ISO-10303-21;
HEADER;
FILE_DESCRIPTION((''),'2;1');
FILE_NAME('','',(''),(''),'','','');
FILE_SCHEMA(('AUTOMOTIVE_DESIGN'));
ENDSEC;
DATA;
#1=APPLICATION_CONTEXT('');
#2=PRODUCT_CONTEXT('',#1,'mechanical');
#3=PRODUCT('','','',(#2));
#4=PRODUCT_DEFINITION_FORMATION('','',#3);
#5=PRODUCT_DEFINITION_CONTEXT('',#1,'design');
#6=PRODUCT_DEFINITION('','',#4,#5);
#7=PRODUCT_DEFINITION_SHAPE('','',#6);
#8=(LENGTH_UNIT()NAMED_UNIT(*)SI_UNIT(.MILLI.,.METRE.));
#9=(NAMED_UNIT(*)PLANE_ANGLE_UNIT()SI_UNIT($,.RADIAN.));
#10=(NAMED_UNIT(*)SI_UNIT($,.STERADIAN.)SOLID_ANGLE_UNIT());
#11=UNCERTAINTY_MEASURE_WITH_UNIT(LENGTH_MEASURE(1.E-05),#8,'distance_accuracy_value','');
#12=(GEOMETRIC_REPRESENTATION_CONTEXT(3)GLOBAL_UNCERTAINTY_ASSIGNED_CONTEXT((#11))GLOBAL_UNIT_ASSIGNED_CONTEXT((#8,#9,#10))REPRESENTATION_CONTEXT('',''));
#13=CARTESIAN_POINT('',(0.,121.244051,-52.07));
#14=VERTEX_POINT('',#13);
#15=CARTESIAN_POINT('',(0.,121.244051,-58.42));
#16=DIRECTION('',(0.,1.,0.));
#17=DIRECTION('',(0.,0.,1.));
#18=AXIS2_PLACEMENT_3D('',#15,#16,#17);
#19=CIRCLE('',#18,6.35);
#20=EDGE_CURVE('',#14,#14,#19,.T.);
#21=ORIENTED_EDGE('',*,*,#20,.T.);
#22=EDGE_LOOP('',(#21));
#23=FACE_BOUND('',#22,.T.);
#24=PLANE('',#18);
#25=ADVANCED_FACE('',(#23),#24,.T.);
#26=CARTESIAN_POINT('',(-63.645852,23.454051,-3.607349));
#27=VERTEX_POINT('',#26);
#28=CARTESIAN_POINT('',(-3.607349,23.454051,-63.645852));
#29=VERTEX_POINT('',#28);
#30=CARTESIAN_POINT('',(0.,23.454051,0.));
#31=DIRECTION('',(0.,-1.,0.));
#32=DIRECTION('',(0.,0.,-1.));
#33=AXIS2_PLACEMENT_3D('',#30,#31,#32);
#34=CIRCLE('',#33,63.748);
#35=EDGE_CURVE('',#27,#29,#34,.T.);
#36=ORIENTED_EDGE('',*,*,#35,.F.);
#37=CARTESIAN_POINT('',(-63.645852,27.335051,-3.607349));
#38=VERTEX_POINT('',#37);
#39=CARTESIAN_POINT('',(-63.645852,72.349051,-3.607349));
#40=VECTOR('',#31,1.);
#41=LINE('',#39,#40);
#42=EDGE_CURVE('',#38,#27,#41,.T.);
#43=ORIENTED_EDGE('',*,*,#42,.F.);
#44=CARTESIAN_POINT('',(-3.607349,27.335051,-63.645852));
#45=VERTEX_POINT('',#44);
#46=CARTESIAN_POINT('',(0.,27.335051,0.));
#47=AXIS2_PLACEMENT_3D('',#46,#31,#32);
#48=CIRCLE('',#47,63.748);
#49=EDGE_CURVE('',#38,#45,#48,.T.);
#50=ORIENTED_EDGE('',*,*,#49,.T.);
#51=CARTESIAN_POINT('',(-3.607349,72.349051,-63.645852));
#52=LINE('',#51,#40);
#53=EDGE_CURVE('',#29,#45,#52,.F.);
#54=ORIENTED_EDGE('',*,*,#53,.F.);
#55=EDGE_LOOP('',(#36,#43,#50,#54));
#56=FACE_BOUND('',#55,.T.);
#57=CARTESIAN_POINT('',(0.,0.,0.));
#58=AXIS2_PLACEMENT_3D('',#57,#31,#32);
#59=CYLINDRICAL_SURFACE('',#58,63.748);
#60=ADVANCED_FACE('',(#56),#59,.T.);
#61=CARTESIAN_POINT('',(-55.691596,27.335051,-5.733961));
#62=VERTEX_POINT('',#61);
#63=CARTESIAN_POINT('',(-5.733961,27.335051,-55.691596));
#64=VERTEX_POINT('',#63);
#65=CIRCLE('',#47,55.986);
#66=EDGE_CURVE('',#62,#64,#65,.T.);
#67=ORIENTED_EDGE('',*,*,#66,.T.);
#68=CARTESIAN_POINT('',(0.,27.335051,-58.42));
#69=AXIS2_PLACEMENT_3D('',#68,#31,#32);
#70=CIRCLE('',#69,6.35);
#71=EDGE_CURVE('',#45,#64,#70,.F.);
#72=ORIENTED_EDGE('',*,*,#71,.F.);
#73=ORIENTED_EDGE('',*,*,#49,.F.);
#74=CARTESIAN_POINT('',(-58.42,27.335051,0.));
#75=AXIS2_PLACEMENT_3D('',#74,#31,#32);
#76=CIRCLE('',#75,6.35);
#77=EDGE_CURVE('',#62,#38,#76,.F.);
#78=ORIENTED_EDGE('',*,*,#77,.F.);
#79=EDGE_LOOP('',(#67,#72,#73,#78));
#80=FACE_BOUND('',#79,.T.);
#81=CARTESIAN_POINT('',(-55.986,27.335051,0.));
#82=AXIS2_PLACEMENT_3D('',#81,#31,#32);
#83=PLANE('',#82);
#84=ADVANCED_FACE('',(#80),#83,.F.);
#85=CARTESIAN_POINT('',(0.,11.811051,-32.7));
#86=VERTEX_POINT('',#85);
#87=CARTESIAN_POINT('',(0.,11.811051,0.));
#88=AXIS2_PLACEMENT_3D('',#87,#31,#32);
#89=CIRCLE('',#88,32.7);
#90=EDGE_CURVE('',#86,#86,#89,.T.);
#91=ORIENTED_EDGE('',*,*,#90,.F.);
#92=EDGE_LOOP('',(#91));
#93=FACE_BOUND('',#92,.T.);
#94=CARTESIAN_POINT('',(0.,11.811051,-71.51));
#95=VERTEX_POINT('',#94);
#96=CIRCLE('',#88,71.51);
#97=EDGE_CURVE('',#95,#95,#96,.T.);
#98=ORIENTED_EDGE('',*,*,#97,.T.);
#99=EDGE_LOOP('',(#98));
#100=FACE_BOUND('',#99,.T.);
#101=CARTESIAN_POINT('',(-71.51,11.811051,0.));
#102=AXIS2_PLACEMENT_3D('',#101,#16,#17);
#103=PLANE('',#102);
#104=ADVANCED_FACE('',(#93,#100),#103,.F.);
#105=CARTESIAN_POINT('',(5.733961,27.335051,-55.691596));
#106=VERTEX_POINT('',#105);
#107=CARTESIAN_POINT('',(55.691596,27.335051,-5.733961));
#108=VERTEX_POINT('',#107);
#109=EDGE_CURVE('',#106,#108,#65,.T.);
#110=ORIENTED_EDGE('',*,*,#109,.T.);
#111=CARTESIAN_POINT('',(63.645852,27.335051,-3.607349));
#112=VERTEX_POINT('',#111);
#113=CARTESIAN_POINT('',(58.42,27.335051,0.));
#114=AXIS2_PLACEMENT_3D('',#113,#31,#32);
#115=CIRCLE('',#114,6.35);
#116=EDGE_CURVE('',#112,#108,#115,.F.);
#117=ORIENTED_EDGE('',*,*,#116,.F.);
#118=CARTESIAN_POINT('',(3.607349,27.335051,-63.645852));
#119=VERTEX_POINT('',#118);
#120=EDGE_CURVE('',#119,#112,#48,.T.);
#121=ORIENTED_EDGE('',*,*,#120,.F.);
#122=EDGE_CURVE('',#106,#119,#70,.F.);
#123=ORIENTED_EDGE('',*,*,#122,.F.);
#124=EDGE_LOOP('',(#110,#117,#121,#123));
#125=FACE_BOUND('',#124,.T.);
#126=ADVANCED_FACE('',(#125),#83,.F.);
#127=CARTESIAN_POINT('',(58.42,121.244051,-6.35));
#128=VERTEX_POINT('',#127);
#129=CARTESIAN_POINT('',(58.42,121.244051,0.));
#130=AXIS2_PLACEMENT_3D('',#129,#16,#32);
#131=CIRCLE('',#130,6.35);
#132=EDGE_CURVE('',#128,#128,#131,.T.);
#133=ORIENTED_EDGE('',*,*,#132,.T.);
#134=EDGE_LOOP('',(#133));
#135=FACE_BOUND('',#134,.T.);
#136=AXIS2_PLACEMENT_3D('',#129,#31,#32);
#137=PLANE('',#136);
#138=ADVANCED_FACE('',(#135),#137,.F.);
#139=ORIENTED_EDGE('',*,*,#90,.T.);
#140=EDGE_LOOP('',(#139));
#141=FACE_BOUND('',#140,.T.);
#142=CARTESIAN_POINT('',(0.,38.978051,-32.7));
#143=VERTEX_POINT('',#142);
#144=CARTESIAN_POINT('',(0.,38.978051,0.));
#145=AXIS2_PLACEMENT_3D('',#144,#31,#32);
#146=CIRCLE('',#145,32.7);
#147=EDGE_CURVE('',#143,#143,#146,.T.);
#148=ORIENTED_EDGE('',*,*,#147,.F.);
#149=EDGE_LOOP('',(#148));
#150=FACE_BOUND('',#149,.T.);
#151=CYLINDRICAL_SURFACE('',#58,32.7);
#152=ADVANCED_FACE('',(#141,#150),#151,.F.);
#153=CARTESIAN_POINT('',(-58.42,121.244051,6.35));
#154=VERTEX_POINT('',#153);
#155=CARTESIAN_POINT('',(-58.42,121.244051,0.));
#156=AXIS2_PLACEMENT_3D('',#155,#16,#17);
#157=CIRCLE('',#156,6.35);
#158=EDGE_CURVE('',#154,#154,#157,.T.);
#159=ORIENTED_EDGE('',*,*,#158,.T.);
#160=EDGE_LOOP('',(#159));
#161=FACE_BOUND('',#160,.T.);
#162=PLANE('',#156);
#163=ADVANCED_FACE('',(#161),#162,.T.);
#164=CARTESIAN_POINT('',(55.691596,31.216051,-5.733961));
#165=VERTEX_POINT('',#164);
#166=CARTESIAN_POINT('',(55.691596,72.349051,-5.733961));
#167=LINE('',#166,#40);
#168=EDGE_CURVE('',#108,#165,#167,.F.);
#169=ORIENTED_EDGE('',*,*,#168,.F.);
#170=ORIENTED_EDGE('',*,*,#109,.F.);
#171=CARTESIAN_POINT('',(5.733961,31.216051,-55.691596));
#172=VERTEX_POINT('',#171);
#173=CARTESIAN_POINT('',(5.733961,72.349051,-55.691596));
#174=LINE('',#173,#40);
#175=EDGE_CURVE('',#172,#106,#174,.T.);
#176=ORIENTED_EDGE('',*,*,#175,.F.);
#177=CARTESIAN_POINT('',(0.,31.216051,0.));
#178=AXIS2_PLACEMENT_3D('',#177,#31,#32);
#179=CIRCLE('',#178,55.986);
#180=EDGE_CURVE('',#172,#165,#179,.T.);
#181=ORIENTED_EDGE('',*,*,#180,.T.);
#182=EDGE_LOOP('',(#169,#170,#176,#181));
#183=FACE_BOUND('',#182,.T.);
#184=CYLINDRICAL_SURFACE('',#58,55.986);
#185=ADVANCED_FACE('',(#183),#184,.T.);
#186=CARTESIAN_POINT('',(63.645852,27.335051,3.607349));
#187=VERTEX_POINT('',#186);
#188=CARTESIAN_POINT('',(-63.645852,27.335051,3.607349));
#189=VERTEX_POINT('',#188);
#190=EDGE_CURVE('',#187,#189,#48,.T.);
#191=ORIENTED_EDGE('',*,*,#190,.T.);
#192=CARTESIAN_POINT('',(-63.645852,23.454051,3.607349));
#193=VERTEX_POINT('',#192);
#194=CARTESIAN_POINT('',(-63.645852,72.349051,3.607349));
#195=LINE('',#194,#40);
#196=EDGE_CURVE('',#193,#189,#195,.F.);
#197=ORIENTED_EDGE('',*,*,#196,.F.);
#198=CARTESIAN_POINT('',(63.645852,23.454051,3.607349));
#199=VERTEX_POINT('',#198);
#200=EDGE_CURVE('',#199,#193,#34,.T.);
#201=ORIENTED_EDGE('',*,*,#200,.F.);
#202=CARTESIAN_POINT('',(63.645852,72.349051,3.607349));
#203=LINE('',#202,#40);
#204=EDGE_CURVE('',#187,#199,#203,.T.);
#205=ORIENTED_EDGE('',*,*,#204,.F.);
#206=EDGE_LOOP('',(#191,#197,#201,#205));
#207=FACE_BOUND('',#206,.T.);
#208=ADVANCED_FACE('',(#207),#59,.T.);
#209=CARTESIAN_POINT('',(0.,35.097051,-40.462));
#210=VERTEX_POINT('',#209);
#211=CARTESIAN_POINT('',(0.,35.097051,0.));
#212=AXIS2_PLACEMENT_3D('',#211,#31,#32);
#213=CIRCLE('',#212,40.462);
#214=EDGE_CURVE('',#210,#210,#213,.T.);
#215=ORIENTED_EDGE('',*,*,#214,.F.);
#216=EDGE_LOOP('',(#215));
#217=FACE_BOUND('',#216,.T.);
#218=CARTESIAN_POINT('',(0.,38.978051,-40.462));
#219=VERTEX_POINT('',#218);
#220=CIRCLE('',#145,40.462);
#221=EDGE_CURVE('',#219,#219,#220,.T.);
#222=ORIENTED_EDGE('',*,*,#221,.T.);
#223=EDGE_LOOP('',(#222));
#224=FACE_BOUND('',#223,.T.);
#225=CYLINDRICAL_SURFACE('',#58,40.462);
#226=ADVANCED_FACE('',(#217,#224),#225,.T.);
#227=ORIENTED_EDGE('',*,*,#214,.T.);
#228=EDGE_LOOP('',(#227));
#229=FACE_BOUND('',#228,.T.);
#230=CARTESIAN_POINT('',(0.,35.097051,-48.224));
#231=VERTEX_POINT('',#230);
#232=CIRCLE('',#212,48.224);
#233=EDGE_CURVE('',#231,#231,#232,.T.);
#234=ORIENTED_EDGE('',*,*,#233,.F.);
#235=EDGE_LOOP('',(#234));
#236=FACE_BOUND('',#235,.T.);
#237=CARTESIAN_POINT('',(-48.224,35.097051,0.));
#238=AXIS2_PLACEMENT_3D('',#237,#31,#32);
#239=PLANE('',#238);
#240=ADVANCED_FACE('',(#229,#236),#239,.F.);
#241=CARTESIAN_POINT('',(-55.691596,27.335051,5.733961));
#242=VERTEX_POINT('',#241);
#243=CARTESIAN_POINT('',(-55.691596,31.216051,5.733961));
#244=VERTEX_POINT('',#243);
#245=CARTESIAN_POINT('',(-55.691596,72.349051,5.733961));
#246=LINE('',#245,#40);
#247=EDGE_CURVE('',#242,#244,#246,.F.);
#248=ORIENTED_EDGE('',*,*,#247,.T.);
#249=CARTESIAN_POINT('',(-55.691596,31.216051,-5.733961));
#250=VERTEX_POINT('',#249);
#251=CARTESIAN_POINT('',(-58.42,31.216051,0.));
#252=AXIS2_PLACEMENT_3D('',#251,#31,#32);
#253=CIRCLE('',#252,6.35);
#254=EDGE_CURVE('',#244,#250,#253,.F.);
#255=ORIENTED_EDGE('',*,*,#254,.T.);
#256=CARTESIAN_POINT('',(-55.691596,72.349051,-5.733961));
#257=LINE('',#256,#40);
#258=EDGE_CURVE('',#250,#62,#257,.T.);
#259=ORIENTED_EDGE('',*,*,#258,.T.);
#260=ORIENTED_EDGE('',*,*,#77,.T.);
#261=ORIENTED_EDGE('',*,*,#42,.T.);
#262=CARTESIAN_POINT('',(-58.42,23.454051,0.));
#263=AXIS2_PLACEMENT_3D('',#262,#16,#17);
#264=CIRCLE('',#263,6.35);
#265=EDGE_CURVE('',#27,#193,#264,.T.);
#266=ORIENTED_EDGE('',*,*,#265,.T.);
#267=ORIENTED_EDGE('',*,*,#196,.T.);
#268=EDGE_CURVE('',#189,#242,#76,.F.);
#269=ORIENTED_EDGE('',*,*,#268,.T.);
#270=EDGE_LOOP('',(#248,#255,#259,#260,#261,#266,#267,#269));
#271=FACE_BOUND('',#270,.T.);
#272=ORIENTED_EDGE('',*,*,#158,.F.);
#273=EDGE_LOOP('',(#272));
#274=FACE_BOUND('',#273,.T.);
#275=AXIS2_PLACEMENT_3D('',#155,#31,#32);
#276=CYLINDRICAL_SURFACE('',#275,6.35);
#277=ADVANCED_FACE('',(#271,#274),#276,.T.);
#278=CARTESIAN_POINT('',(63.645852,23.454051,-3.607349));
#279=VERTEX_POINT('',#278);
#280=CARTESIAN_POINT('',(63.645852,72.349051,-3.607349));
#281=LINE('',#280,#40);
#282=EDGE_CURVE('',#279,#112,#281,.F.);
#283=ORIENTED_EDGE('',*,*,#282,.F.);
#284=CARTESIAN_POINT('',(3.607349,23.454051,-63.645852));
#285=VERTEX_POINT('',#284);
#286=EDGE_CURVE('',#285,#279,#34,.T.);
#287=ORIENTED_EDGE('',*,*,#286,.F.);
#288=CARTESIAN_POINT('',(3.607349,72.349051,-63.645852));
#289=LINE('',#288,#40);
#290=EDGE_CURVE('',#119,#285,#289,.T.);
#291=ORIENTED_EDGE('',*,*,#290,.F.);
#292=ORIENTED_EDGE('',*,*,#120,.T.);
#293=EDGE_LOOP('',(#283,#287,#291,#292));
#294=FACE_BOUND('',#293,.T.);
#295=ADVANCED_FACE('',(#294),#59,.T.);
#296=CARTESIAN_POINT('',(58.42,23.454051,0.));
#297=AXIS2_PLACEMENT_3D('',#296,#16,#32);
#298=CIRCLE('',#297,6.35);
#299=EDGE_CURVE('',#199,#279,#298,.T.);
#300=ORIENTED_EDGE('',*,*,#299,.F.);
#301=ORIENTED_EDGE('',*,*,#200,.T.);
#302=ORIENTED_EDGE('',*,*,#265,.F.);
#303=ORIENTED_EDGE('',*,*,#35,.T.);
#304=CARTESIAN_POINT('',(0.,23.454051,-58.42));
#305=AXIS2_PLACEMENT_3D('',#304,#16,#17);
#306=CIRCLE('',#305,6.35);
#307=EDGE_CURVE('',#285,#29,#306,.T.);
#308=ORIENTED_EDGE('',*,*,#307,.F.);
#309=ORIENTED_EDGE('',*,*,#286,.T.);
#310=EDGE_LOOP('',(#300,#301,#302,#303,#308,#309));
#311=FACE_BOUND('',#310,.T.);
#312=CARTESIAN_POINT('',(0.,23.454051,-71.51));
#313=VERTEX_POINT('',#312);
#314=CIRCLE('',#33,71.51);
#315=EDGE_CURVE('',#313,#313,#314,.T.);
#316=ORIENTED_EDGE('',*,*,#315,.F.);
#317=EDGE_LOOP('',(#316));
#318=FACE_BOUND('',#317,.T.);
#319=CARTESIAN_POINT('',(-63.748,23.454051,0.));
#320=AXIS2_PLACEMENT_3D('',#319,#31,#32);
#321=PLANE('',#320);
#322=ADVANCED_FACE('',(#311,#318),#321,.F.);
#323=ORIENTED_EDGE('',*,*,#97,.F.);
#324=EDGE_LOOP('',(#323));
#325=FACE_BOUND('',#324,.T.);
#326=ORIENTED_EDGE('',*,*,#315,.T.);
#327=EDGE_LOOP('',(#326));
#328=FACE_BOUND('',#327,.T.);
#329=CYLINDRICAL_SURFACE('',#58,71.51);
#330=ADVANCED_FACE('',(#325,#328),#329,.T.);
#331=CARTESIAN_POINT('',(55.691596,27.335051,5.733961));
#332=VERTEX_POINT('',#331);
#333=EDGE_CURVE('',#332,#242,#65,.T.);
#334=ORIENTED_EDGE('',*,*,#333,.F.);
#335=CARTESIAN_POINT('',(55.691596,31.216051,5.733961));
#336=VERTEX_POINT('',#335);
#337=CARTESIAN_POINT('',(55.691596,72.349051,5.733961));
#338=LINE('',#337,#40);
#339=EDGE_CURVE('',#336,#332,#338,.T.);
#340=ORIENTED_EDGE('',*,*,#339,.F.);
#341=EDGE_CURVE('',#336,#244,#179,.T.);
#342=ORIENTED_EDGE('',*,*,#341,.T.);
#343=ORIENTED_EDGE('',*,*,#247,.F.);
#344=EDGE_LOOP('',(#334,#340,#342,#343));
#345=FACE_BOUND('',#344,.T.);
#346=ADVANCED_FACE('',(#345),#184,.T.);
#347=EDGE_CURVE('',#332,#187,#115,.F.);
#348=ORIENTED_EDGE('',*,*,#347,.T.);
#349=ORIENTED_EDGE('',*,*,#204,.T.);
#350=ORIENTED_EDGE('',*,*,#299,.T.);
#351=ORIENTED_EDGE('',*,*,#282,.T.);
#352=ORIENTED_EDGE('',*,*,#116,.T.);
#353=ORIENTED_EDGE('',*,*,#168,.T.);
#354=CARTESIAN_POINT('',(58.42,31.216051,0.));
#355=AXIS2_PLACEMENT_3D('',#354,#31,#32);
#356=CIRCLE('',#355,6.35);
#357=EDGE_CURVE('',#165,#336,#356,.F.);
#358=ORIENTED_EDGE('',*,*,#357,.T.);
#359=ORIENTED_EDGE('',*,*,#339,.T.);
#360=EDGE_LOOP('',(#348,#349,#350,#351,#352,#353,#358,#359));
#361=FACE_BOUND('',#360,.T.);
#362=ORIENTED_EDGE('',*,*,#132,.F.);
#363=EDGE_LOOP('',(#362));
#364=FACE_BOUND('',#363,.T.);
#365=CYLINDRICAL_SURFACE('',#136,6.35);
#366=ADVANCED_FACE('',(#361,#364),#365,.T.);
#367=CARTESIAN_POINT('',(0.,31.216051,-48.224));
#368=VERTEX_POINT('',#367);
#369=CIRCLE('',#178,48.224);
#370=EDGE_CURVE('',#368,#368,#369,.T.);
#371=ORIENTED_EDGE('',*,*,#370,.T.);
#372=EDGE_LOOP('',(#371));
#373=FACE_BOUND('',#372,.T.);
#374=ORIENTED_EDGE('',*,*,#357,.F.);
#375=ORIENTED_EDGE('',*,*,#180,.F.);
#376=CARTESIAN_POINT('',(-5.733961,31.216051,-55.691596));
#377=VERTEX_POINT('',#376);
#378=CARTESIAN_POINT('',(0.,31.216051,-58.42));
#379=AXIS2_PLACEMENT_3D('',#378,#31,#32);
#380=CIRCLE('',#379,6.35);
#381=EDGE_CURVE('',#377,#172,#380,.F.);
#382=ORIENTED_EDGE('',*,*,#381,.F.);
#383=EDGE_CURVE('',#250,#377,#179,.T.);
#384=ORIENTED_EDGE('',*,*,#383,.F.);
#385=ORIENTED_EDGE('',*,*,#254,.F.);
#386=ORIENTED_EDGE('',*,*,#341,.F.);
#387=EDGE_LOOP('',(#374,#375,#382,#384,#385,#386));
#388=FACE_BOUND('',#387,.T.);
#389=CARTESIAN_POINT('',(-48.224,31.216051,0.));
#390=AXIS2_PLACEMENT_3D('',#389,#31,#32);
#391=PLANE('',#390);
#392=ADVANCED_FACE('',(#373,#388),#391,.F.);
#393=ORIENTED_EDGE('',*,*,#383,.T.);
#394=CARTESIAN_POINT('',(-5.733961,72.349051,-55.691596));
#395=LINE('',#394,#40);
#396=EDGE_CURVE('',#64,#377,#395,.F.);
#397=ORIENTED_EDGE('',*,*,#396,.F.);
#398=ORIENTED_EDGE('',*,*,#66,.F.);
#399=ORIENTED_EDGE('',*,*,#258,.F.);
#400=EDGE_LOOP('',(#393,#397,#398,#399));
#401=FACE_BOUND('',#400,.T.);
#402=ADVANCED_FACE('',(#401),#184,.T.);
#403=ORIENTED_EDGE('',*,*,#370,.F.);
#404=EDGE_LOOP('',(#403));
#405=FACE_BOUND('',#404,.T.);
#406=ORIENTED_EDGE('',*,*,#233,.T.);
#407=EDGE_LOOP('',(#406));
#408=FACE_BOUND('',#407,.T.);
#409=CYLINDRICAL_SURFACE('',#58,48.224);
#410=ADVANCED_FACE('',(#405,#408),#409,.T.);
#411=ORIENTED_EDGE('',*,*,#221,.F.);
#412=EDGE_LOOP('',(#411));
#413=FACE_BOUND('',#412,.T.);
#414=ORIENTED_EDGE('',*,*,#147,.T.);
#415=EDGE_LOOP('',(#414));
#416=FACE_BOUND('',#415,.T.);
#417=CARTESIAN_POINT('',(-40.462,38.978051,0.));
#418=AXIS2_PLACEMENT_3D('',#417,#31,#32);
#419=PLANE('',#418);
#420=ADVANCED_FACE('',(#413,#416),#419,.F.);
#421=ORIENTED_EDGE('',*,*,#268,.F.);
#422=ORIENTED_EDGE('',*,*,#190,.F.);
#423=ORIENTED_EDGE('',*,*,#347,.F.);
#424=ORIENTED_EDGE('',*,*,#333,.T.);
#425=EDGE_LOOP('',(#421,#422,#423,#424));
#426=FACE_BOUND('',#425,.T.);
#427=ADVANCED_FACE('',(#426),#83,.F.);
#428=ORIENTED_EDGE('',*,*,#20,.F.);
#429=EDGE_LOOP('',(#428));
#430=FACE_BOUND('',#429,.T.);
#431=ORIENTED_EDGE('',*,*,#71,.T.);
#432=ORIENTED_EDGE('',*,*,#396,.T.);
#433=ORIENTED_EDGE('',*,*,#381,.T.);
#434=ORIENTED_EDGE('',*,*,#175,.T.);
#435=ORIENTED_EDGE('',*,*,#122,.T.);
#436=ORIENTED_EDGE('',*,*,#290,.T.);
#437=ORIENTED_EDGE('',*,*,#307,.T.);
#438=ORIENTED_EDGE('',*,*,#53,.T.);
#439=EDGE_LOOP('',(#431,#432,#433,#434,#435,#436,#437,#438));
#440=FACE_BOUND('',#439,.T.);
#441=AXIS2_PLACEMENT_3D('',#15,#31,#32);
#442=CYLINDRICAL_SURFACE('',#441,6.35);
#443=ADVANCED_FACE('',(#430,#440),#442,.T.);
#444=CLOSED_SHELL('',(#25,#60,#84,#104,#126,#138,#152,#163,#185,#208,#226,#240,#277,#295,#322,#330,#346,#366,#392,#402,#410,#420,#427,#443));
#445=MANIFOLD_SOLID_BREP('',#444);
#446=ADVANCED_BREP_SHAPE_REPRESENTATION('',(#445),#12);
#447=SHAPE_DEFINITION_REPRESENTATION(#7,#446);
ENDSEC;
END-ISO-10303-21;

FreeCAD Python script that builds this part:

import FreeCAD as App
import Part
import Sketcher
Q = App.Units.Quantity

doc = App.newDocument("Part")
body = doc.addObject("PartDesign::Body", "Body")

sketch1 = doc.addObject("Sketcher::SketchObject", "Sketch")
body.addObject(sketch1)
sketch1.AttachmentSupport = (doc.XY_Plane, [""])
sketch1.MapMode = "FlatFace"
sketch1.addGeometry([
    Part.LineSegment(App.Vector(-40.462, 35.097051, 0), App.Vector(-48.224, 35.097051, 0)),
    Part.LineSegment(App.Vector(-48.224, 35.097051, 0), App.Vector(-48.224, 31.216051, 0)),
    Part.LineSegment(App.Vector(-48.224, 31.216051, 0), App.Vector(-55.986, 31.216051, 0)),
    Part.LineSegment(App.Vector(-55.986, 31.216051, 0), App.Vector(-55.986, 27.335051, 0)),
    Part.LineSegment(App.Vector(-55.986, 27.335051, 0), App.Vector(-63.748, 27.335051, 0)),
    Part.LineSegment(App.Vector(-63.748, 27.335051, 0), App.Vector(-63.748, 23.454051, 0)),
    Part.LineSegment(App.Vector(-63.748, 23.454051, 0), App.Vector(-71.51, 23.454051, 0)),
    Part.LineSegment(App.Vector(-71.51, 23.454051, 0), App.Vector(-71.51, 11.811051, 0)),
    Part.LineSegment(App.Vector(-71.51, 11.811051, 0), App.Vector(-32.7, 11.811051, 0)),
    Part.LineSegment(App.Vector(-32.7, 11.811051, 0), App.Vector(-32.7, 38.978051, 0)),
    Part.LineSegment(App.Vector(-32.7, 38.978051, 0), App.Vector(-40.462, 38.978051, 0)),
    Part.LineSegment(App.Vector(-40.462, 38.978051, 0), App.Vector(-40.462, 35.097051, 0)),
], False)
sketch1.addConstraint([
    Sketcher.Constraint("Coincident", 0, 2, 1, 1),
    Sketcher.Constraint("Coincident", 1, 2, 2, 1),
    Sketcher.Constraint("Coincident", 2, 2, 3, 1),
    Sketcher.Constraint("Coincident", 3, 2, 4, 1),
    Sketcher.Constraint("Coincident", 4, 2, 5, 1),
    Sketcher.Constraint("Coincident", 5, 2, 6, 1),
    Sketcher.Constraint("Coincident", 6, 2, 7, 1),
    Sketcher.Constraint("Coincident", 7, 2, 8, 1),
    Sketcher.Constraint("Coincident", 8, 2, 9, 1),
    Sketcher.Constraint("Coincident", 9, 2, 10, 1),
    Sketcher.Constraint("Coincident", 10, 2, 11, 1),
    Sketcher.Constraint("Coincident", 11, 2, 0, 1),
    Sketcher.Constraint("Horizontal", 0),
    Sketcher.Constraint("Vertical", 1),
    Sketcher.Constraint("Horizontal", 2),
    Sketcher.Constraint("Vertical", 3),
    Sketcher.Constraint("Horizontal", 4),
    Sketcher.Constraint("Vertical", 5),
    Sketcher.Constraint("Horizontal", 6),
    Sketcher.Constraint("Vertical", 7),
    Sketcher.Constraint("Horizontal", 8),
    Sketcher.Constraint("Vertical", 9),
    Sketcher.Constraint("Horizontal", 10),
    Sketcher.Constraint("Vertical", 11),
    Sketcher.Constraint("Equal", 0, 2),
    Sketcher.Constraint("Equal", 2, 4),
    Sketcher.Constraint("Equal", 4, 6),
    Sketcher.Constraint("Equal", 6, 10),
    Sketcher.Constraint("Equal", 1, 3),
    Sketcher.Constraint("Equal", 3, 5),
    Sketcher.Constraint("Equal", 5, 11),
    Sketcher.Constraint("DistanceX", 0, 2, 0, 1, 7.762),
    Sketcher.Constraint("DistanceY", 1, 2, 1, 1, 3.881),
    Sketcher.Constraint("DistanceY", 7, 2, 7, 1, 11.643),
    Sketcher.Constraint("DistanceX", 0, 2, -1, 1, 48.224),
    Sketcher.Constraint("DistanceY", -1, 1, 0, 2, 35.097051),
])
revolution = doc.addObject("PartDesign::Revolution", "Revolution")
body.addObject(revolution)
revolution.Profile = sketch1
revolution.ReferenceAxis = (sketch1, ["V_Axis"])
revolution.Angle = 360

sketch2 = doc.addObject("Sketcher::SketchObject", "Sketch001")
body.addObject(sketch2)
sketch2.AttachmentSupport = (doc.XZ_Plane, [""])
sketch2.MapMode = "FlatFace"
sketch2.AttachmentOffset = App.Placement(App.Vector(0, 0, -23.454051), App.Rotation())
sketch2.addGeometry([
    Part.Circle(App.Vector(-58.42, 0, 0), App.Vector(0, 0, 1), 6.35),
    Part.Circle(App.Vector(58.42, 0, 0), App.Vector(0, 0, 1), 6.35),
    Part.Circle(App.Vector(0, -58.42, 0), App.Vector(0, 0, 1), 6.35),
], False)
sketch2.addConstraint([
    Sketcher.Constraint("Equal", 0, 1),
    Sketcher.Constraint("Equal", 1, 2),
    Sketcher.Constraint("Symmetric", 0, 3, 1, 3, -1, 1),
    Sketcher.Constraint("PointOnObject", 0, 3, -1),
    Sketcher.Constraint("PointOnObject", 2, 3, -2),
    Sketcher.Constraint("Diameter", 0, Q("0.5 in")),
    Sketcher.Constraint("DistanceX", 0, 3, -1, 1, Q("2.3 in")),
    Sketcher.Constraint("DistanceY", 2, 3, -1, 1, Q("2.3 in")),
])
pad1 = doc.addObject("PartDesign::Pad", "Pad")
body.addObject(pad1)
pad1.Profile = sketch2
pad1.Length = Q("3.85 in")
pad1.Reversed = True

doc.recompute()
